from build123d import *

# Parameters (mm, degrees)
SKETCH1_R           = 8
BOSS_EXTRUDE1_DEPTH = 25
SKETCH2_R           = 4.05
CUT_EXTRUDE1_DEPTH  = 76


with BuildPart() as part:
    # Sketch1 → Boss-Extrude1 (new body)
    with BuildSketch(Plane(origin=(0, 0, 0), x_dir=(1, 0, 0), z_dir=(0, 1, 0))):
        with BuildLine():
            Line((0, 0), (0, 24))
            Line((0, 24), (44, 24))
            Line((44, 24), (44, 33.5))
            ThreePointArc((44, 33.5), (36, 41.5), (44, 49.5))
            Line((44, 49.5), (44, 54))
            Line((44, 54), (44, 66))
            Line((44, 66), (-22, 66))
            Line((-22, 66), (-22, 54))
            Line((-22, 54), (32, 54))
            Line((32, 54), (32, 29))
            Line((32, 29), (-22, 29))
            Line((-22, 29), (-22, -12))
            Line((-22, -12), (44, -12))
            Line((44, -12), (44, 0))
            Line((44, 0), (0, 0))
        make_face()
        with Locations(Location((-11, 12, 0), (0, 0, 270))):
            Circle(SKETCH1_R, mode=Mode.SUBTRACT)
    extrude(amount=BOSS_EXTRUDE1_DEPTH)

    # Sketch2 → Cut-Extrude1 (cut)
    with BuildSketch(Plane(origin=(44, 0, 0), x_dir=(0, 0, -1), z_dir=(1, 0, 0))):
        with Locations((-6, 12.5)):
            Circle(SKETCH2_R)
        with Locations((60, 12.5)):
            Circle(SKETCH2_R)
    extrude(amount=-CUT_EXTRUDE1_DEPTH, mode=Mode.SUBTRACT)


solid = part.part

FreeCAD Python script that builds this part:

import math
import FreeCAD as App
import Part
import Sketcher

doc = App.newDocument("Part")
body = doc.addObject("PartDesign::Body", "Body")

# Sketch on XZ plane
sketch1 = body.newObject("Sketcher::SketchObject", "Sketch")
sketch1.AttachmentSupport = (doc.getObject("XZ_Plane"), [""])
sketch1.MapMode = "FlatFace"
sketch1.addGeometry(Part.LineSegment(App.Vector(0, 0, 0), App.Vector(0, -24, 0)), False)
sketch1.addGeometry(Part.LineSegment(App.Vector(0, -24, 0), App.Vector(44, -24, 0)), False)
sketch1.addGeometry(Part.LineSegment(App.Vector(44, -24, 0), App.Vector(44, -34, 0)), False)
sketch1.addGeometry(Part.ArcOfCircle(Part.Circle(App.Vector(44, -42, 0), App.Vector(0, 0, 1), 8), math.radians(90), math.radians(270)), False)
sketch1.addGeometry(Part.LineSegment(App.Vector(44, -50, 0), App.Vector(44, -66, 0)), False)
sketch1.addGeometry(Part.LineSegment(App.Vector(44, -66, 0), App.Vector(-22, -66, 0)), False)
sketch1.addGeometry(Part.LineSegment(App.Vector(-22, -66, 0), App.Vector(-22, -54, 0)), False)
sketch1.addGeometry(Part.LineSegment(App.Vector(-22, -54, 0), App.Vector(32, -54, 0)), False)
sketch1.addGeometry(Part.LineSegment(App.Vector(32, -54, 0), App.Vector(32, -29, 0)), False)
sketch1.addGeometry(Part.LineSegment(App.Vector(32, -29, 0), App.Vector(-22, -29, 0)), False)
sketch1.addGeometry(Part.LineSegment(App.Vector(-22, -29, 0), App.Vector(-22, 12, 0)), False)
sketch1.addGeometry(Part.LineSegment(App.Vector(-22, 12, 0), App.Vector(44, 12, 0)), False)
sketch1.addGeometry(Part.LineSegment(App.Vector(44, 12, 0), App.Vector(44, 0, 0)), False)
sketch1.addGeometry(Part.LineSegment(App.Vector(44, 0, 0), App.Vector(0, 0, 0)), False)
sketch1.addGeometry(Part.Circle(App.Vector(-11, -12, 0), App.Vector(0, 0, 1), 8), False)
sketch1.addConstraint(Sketcher.Constraint("Coincident", 0, 2, 1, 1))
sketch1.addConstraint(Sketcher.Constraint("Coincident", 1, 2, 2, 1))
sketch1.addConstraint(Sketcher.Constraint("Coincident", 2, 2, 3, 1))
sketch1.addConstraint(Sketcher.Constraint("Coincident", 3, 2, 4, 1))
sketch1.addConstraint(Sketcher.Constraint("Coincident", 4, 2, 5, 1))
sketch1.addConstraint(Sketcher.Constraint("Coincident", 5, 2, 6, 1))
sketch1.addConstraint(Sketcher.Constraint("Coincident", 6, 2, 7, 1))
sketch1.addConstraint(Sketcher.Constraint("Coincident", 7, 2, 8, 1))
sketch1.addConstraint(Sketcher.Constraint("Coincident", 8, 2, 9, 1))
sketch1.addConstraint(Sketcher.Constraint("Coincident", 9, 2, 10, 1))
sketch1.addConstraint(Sketcher.Constraint("Coincident", 10, 2, 11, 1))
sketch1.addConstraint(Sketcher.Constraint("Coincident", 11, 2, 12, 1))
sketch1.addConstraint(Sketcher.Constraint("Coincident", 12, 2, 13, 1))
sketch1.addConstraint(Sketcher.Constraint("Coincident", 13, 2, 0, 1))
sketch1.addConstraint(Sketcher.Constraint("Vertical", 0))
sketch1.addConstraint(Sketcher.Constraint("Horizontal", 1))
sketch1.addConstraint(Sketcher.Constraint("Vertical", 2))
sketch1.addConstraint(Sketcher.Constraint("Vertical", 4))
sketch1.addConstraint(Sketcher.Constraint("Horizontal", 5))
sketch1.addConstraint(Sketcher.Constraint("Vertical", 6))
sketch1.addConstraint(Sketcher.Constraint("Horizontal", 7))
sketch1.addConstraint(Sketcher.Constraint("Vertical", 8))
sketch1.addConstraint(Sketcher.Constraint("Horizontal", 9))
sketch1.addConstraint(Sketcher.Constraint("Vertical", 10))
sketch1.addConstraint(Sketcher.Constraint("Horizontal", 11))
sketch1.addConstraint(Sketcher.Constraint("Vertical", 12))
sketch1.addConstraint(Sketcher.Constraint("Horizontal", 13))
sketch1.addConstraint(Sketcher.Constraint("Coincident", 13, 2, -1, 1))
sketch1.addConstraint(Sketcher.Constraint("Equal", 3, 14))
sketch1.addConstraint(Sketcher.Constraint("Vertical", 3, 3, 1, 2))
sketch1.addConstraint(Sketcher.Constraint("Vertical", 2, 2, 3, 2))
sketch1.addConstraint(Sketcher.Constraint("Vertical", 6, 2, 9, 2))
sketch1.addConstraint(Sketcher.Constraint("Vertical", 4, 2, 11, 2))
sketch1.addConstraint(Sketcher.Constraint("Equal", 6, 12))
sketch1.addConstraint(Sketcher.Constraint("Diameter", 14, 16.0))
sketch1.addConstraint(Sketcher.Constraint("DistanceX", 1, 1, 1, 2, 44.0))
sketch1.addConstraint(Sketcher.Constraint("DistanceX", 5, 2, 5, 1, 66.0))
sketch1.addConstraint(Sketcher.Constraint("DistanceX", 7, 1, 7, 2, 54.0))
sketch1.addConstraint(Sketcher.Constraint("DistanceY", 0, 2, 0, 1, 24.0))
sketch1.addConstraint(Sketcher.Constraint("DistanceY", 6, 1, 6, 2, 12.0))
sketch1.addConstraint(Sketcher.Constraint("DistanceY", 8, 1, 8, 2, 25.0))
sketch1.addConstraint(Sketcher.Constraint("DistanceY", 10, 1, 10, 2, 41.0))
sketch1.addConstraint(Sketcher.Constraint("DistanceY", 2, 2, 2, 1, 9.5))
sketch1.addConstraint(Sketcher.Constraint("DistanceX", 14, 3, -1, 1, 11.0))
sketch1.addConstraint(Sketcher.Constraint("DistanceY", 14, 3, -1, 1, 12.0))
pad1 = body.newObject("PartDesign::Pad", "Pad")
pad1.Profile = sketch1
pad1.Length = 25
pad1.Reversed = True

# Sketch on YZ plane
sketch2 = body.newObject("Sketcher::SketchObject", "Sketch001")
sketch2.AttachmentSupport = (doc.getObject("YZ_Plane"), [""])
sketch2.MapMode = "FlatFace"
sketch2.AttachmentOffset = App.Placement(App.Vector(0, 0, 44), App.Rotation())
sketch2.addGeometry(Part.Circle(App.Vector(12.5, 6, 0), App.Vector(0, 0, 1), 4), False)
sketch2.addGeometry(Part.Circle(App.Vector(12.5, -60, 0), App.Vector(0, 0, 1), 4), False)
sketch2.addConstraint(Sketcher.Constraint("Equal", 0, 1))
sketch2.addConstraint(Sketcher.Constraint("Vertical", 0, 3, 1, 3))
sketch2.addConstraint(Sketcher.Constraint("Diameter", 0, 8.1))
sketch2.addConstraint(Sketcher.Constraint("DistanceY", -1, 1, 0, 3, 6.0))
sketch2.addConstraint(Sketcher.Constraint("DistanceY", 1, 3, -1, 1, 60.0))
sketch2.addConstraint(Sketcher.Constraint("DistanceX", -1, 1, 0, 3, 12.5))
pocket1 = body.newObject("PartDesign::Pocket", "Pocket")
pocket1.Profile = sketch2
pocket1.Length = 76

doc.recompute()
